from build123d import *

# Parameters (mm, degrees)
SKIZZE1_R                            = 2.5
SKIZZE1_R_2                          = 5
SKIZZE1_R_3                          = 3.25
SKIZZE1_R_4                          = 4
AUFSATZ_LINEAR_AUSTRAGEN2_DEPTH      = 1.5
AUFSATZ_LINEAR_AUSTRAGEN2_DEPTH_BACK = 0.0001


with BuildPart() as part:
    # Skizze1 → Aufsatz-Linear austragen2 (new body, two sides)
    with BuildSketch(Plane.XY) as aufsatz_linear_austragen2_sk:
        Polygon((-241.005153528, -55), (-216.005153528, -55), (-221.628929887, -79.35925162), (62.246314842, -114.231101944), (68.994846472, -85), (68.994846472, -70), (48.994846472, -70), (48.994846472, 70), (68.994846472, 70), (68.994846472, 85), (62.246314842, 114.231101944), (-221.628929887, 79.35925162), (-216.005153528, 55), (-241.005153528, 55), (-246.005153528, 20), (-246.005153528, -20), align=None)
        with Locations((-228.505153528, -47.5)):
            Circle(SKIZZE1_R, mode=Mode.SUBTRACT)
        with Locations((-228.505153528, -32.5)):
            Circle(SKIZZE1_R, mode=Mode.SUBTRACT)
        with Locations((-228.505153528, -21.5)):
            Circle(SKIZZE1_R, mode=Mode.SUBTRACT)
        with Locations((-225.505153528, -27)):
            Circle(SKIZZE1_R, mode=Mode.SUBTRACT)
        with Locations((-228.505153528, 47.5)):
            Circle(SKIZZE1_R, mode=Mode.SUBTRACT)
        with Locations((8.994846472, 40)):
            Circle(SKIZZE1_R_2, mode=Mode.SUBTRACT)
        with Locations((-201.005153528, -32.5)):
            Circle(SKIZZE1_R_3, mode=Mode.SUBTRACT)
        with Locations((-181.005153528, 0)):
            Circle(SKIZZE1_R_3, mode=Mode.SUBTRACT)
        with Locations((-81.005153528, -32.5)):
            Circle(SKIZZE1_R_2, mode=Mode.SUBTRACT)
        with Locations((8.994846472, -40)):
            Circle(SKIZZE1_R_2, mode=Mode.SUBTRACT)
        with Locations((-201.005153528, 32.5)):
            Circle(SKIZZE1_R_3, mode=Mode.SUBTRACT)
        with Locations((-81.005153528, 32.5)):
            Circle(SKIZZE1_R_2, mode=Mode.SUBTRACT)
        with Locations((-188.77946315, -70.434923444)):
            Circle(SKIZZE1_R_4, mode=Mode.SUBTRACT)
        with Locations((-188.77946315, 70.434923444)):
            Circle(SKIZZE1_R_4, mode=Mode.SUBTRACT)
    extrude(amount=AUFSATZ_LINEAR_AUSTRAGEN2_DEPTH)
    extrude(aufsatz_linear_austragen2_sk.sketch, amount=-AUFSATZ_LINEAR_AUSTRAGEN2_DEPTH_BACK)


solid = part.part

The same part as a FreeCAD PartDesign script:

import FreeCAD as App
import Part
import Sketcher

V = App.Vector
Q = App.Units.Quantity


def add_polygon(sketch, points):
    """Adds a closed chain of lines whose ends are joined by coincident constraints."""
    first, n = sketch.GeometryCount, len(points)
    for a, b in zip(points, points[1:] + points[:1]):
        sketch.addGeometry(Part.LineSegment(App.Vector(*a, 0), App.Vector(*b, 0)), False)
    for i in range(n):
        sketch.addConstraint(Sketcher.Constraint("Coincident", first + i, 2, first + (i + 1) % n, 1))

doc = App.newDocument("Part")
params = doc.addObject("Spreadsheet::Sheet", "Params")
for row, (alias, value) in enumerate([
    ("sketch1_diameter", "8 mm"),
    ("sketch1_diameter2", "5 mm"),
    ("sketch1_diameter3", "10 mm"),
    ("sketch1_diameter4", "6.5 mm"),
    ("sketch1_width", "25 mm"),
    ("pad1_length", "1.5 mm"),
    ("pad1_length2", "0.0001 mm"),
], start=1):
    params.set(f"A{row}", alias)
    params.set(f"B{row}", "=" + value)
    params.setAlias(f"B{row}", alias)

body = doc.addObject("PartDesign::Body", "Body")

sketch1 = body.newObject("Sketcher::SketchObject", "Sketch")
sketch1.AttachmentSupport = (doc.getObject("XY_Plane"), [""])
sketch1.MapMode = "FlatFace"
add_polygon(sketch1, [(-241, -55), (-216, -55), (-221.6, -79.4), (62.2, -114.2), (69, -85), (69, -70), (49, -70), (49, 70), (69, 70), (69, 85), (62.2, 114.2), (-221.6, 79.4), (-216, 55), (-241, 55), (-246, 20), (-246, -20)])
sketch1.addGeometry(Part.Circle(V(-188.8, -70.4, 0), V(0, 0, 1), 4), False)
sketch1.addGeometry(Part.Circle(V(-228.5, -47.5, 0), V(0, 0, 1), 2.5), False)
sketch1.addGeometry(Part.Circle(V(-228.5, -32.5, 0), V(0, 0, 1), 2.5), False)
sketch1.addGeometry(Part.Circle(V(-201, -32.5, 0), V(0, 0, 1), 3.2), False)
sketch1.addGeometry(Part.Circle(V(-225.5, -27, 0), V(0, 0, 1), 2.5), False)
sketch1.addGeometry(Part.Circle(V(-228.5, -21.5, 0), V(0, 0, 1), 2.5), False)
sketch1.addGeometry(Part.Circle(V(9, -40, 0), V(0, 0, 1), 5), False)
sketch1.addGeometry(Part.Circle(V(-81, -32.5, 0), V(0, 0, 1), 5), False)
sketch1.addGeometry(Part.Circle(V(-181, 0, 0), V(0, 0, 1), 3.2), False)
sketch1.addGeometry(Part.Circle(V(-201, 32.5, 0), V(0, 0, 1), 3.2), False)
sketch1.addGeometry(Part.Circle(V(-228.5, 47.5, 0), V(0, 0, 1), 2.5), False)
sketch1.addGeometry(Part.Circle(V(-188.8, 70.4, 0), V(0, 0, 1), 4), False)
sketch1.addGeometry(Part.Circle(V(-81, 32.5, 0), V(0, 0, 1), 5), False)
sketch1.addGeometry(Part.Circle(V(9, 40, 0), V(0, 0, 1), 5), False)
sketch1.addConstraint([
    Sketcher.Constraint("Horizontal", 0),
    Sketcher.Constraint("Vertical", 4),
    Sketcher.Constraint("Horizontal", 5),
    Sketcher.Constraint("Vertical", 6),
    Sketcher.Constraint("Horizontal", 7),
    Sketcher.Constraint("Vertical", 8),
    Sketcher.Constraint("Horizontal", 12),
    Sketcher.Constraint("Vertical", 14),
    Sketcher.Constraint("Equal", 17, 18),
    Sketcher.Constraint("Equal", 18, 20),
    Sketcher.Constraint("Equal", 20, 21),
    Sketcher.Constraint("Equal", 22, 23),
    Sketcher.Constraint("Equal", 19, 24),
    Sketcher.Constraint("Equal", 24, 25),
    Sketcher.Constraint("Equal", 21, 26),
    Sketcher.Constraint("Equal", 16, 27),
    Sketcher.Constraint("Equal", 23, 28),
    Sketcher.Constraint("Equal", 28, 29),
    Sketcher.Constraint("Symmetric", 19, 3, 25, 3, -1),
    Sketcher.Constraint("Symmetric", 17, 3, 26, 3, -1),
    Sketcher.Constraint("Symmetric", 16, 3, 27, 3, -1),
    Sketcher.Constraint("Symmetric", 23, 3, 28, 3, -1),
    Sketcher.Constraint("Symmetric", 22, 3, 29, 3, -1),
    Sketcher.Constraint("Symmetric", 4, 2, 7, 2, -1),
    Sketcher.Constraint("Symmetric", 2, 2, 9, 2, -1),
    Sketcher.Constraint("Symmetric", 1, 2, 10, 2, -1),
    Sketcher.Constraint("Symmetric", 0, 2, 11, 2, -1),
    Sketcher.Constraint("PointOnObject", 24, 3, -1),
    Sketcher.Constraint("Parallel", 1, 3),
    Sketcher.Constraint("Parallel", 9, 11),
    Sketcher.Constraint("Horizontal", 18, 3, 19, 3),
    Sketcher.Constraint("Horizontal", 19, 3, 23, 3),
    Sketcher.Constraint("Vertical", 17, 3, 18, 3),
    Sketcher.Constraint("Vertical", 18, 3, 21, 3),
    Sketcher.Constraint("Vertical", 12, 2, 15, 2),
    Sketcher.Constraint("Equal", 13, 15),
    Sketcher.Constraint("Diameter", 16, Q("8 mm")),
    Sketcher.Constraint("Diameter", 17, Q("5 mm")),
    Sketcher.Constraint("Diameter", 22, Q("10 mm")),
    Sketcher.Constraint("Diameter", 19, Q("6.5 mm")),
    Sketcher.Constraint("DistanceX", 0, 1, 0, 2, Q("25 mm")),
    Sketcher.Constraint("DistanceX", 5, 2, 5, 1, Q("20 mm")),
    Sketcher.Constraint("DistanceY", 4, 1, 4, 2, Q("15 mm")),
    Sketcher.Constraint("DistanceY", 6, 1, 6, 2, Q("140 mm")),
    Sketcher.Constraint("DistanceY", 14, 2, 14, 1, Q("40 mm")),
    Sketcher.Constraint("Angle", 1, Q("-103 deg")),
    Sketcher.Constraint("Distance", 1, Q("25 mm")),
    Sketcher.Constraint("Distance", 3, Q("30 mm")),
    Sketcher.Constraint("DistanceY", 20, 3, -1, 1, Q("27 mm")),
    Sketcher.Constraint("DistanceY", 22, 3, -1, 1, Q("40 mm")),
    Sketcher.Constraint("DistanceY", 0, 2, -1, 1, Q("55 mm")),
    Sketcher.Constraint("DistanceY", 17, 3, 18, 3, Q("15 mm")),
    Sketcher.Constraint("DistanceX", 18, 3, 20, 3, Q("3 mm")),
    Sketcher.Constraint("DistanceY", 18, 3, 21, 3, Q("11 mm")),
    Sketcher.Constraint("DistanceX", 19, 3, 22, 3, Q("210 mm")),
    Sketcher.Constraint("DistanceX", 23, 3, 22, 3, Q("90 mm")),
    Sketcher.Constraint("DistanceX", 19, 3, 24, 3, Q("20 mm")),
    Sketcher.Constraint("DistanceY", 21, 3, 25, 3, Q("54 mm")),
    Sketcher.Constraint("DistanceX", 0, 2, 19, 3, Q("15 mm")),
    Sketcher.Constraint("DistanceX", 22, 3, 3, 2, Q("60 mm")),
    Sketcher.Constraint("DistanceX", 13, 2, 12, 2, Q("5 mm")),
    Sketcher.Constraint("DistanceX", 18, 3, 19, 3, Q("27.5 mm")),
    Sketcher.Constraint("DistanceX", 1, 2, -1, 1, Q("221.62893 mm")),
    Sketcher.Constraint("DistanceX", 17, 3, 16, 3, Q("39.72569 mm")),
    Sketcher.Constraint("DistanceY", 1, 2, 16, 3, Q("8.924328 mm")),
])
sketch1.setExpression("Constraints[52]", "Params.sketch1_diameter")
sketch1.setExpression("Constraints[53]", "Params.sketch1_diameter2")
sketch1.setExpression("Constraints[54]", "Params.sketch1_diameter3")
sketch1.setExpression("Constraints[55]", "Params.sketch1_diameter4")
sketch1.setExpression("Constraints[56]", "Params.sketch1_width")
pad1 = body.newObject("PartDesign::Pad", "Pad")
pad1.Profile = sketch1
pad1.Type = "TwoLengths"
pad1.setExpression("Length", "Params.pad1_length")
pad1.setExpression("Length2", "Params.pad1_length2")

doc.recompute()
